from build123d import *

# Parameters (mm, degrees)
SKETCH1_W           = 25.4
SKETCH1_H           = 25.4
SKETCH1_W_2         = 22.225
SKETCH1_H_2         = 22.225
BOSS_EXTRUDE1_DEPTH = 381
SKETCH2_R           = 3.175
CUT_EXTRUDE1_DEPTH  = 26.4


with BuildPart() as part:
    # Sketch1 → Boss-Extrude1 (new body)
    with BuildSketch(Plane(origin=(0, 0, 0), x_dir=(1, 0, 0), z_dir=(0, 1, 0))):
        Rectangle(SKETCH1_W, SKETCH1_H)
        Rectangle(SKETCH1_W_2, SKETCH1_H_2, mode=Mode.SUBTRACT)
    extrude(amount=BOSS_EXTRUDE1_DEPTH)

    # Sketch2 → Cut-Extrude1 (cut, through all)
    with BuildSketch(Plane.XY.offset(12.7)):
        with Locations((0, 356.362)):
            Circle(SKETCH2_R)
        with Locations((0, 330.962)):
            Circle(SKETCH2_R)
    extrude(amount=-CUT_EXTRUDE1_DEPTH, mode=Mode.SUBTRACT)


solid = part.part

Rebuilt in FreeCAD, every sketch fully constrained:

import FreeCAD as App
import Part
import Sketcher
Q = App.Units.Quantity


def add_polygon(sketch, points):
    """Adds a closed chain of lines whose ends are joined by coincident constraints."""
    first, n = sketch.GeometryCount, len(points)
    for a, b in zip(points, points[1:] + points[:1]):
        sketch.addGeometry(Part.LineSegment(App.Vector(*a, 0), App.Vector(*b, 0)), False)
    for i in range(n):
        sketch.addConstraint(Sketcher.Constraint("Coincident", first + i, 2, first + (i + 1) % n, 1))

doc = App.newDocument("Part")
body = doc.addObject("PartDesign::Body", "Body")

# Sketch on XZ plane
sketch1 = body.newObject("Sketcher::SketchObject", "Sketch")
sketch1.AttachmentSupport = (doc.getObject("XZ_Plane"), [""])
sketch1.MapMode = "FlatFace"
add_polygon(sketch1, [(-13, -13), (-13, 13), (13, 13), (13, -13)])  # lines 0-3
add_polygon(sketch1, [(11, 11), (-11, 11), (-11, -11), (11, -11)])  # lines 4-7
sketch1.addConstraint(Sketcher.Constraint("Vertical", 0))
sketch1.addConstraint(Sketcher.Constraint("Horizontal", 1))
sketch1.addConstraint(Sketcher.Constraint("Vertical", 2))
sketch1.addConstraint(Sketcher.Constraint("Horizontal", 3))
sketch1.addConstraint(Sketcher.Constraint("Horizontal", 4))
sketch1.addConstraint(Sketcher.Constraint("Vertical", 5))
sketch1.addConstraint(Sketcher.Constraint("Horizontal", 6))
sketch1.addConstraint(Sketcher.Constraint("Vertical", 7))
sketch1.addConstraint(Sketcher.Constraint("Symmetric", 0, 2, 2, 2, -1, 1))
sketch1.addConstraint(Sketcher.Constraint("Symmetric", 4, 2, 6, 2, -1, 1))
sketch1.addConstraint(Sketcher.Constraint("Equal", 3, 0))
sketch1.addConstraint(Sketcher.Constraint("Equal", 6, 5))
sketch1.addConstraint(Sketcher.Constraint("DistanceX", 1, 1, 1, 2, Q("1 in")))
sketch1.addConstraint(Sketcher.Constraint("DistanceX", 4, 2, 4, 1, Q("0.875 in")))
pad1 = body.newObject("PartDesign::Pad", "Pad")
pad1.Profile = sketch1
pad1.Length = Q("15 in")
pad1.Reversed = True

# Sketch on XY plane
sketch2 = body.newObject("Sketcher::SketchObject", "Sketch001")
sketch2.AttachmentSupport = (doc.getObject("XY_Plane"), [""])
sketch2.MapMode = "FlatFace"
sketch2.AttachmentOffset = App.Placement(App.Vector(0, 0, 0.5 * 25.4), App.Rotation())
sketch2.addGeometry(Part.Circle(App.Vector(0, 356.4, 0), App.Vector(0, 0, 1), 3.2), False)
sketch2.addGeometry(Part.Circle(App.Vector(0, 331, 0), App.Vector(0, 0, 1), 3.2), False)
sketch2.addConstraint(Sketcher.Constraint("Equal", 0, 1))
sketch2.addConstraint(Sketcher.Constraint("PointOnObject", 0, 3, -2))
sketch2.addConstraint(Sketcher.Constraint("PointOnObject", 1, 3, -2))
sketch2.addConstraint(Sketcher.Constraint("Diameter", 0, Q("0.25 in")))
sketch2.addConstraint(Sketcher.Constraint("DistanceY", 1, 3, 0, 3, Q("1 in")))
sketch2.addConstraint(Sketcher.Constraint("DistanceY", -1, 1, 0, 3, Q("14.03 in")))
pocket1 = body.newObject("PartDesign::Pocket", "Pocket")
pocket1.Profile = sketch2
pocket1.Type = "ThroughAll"

doc.recompute()
